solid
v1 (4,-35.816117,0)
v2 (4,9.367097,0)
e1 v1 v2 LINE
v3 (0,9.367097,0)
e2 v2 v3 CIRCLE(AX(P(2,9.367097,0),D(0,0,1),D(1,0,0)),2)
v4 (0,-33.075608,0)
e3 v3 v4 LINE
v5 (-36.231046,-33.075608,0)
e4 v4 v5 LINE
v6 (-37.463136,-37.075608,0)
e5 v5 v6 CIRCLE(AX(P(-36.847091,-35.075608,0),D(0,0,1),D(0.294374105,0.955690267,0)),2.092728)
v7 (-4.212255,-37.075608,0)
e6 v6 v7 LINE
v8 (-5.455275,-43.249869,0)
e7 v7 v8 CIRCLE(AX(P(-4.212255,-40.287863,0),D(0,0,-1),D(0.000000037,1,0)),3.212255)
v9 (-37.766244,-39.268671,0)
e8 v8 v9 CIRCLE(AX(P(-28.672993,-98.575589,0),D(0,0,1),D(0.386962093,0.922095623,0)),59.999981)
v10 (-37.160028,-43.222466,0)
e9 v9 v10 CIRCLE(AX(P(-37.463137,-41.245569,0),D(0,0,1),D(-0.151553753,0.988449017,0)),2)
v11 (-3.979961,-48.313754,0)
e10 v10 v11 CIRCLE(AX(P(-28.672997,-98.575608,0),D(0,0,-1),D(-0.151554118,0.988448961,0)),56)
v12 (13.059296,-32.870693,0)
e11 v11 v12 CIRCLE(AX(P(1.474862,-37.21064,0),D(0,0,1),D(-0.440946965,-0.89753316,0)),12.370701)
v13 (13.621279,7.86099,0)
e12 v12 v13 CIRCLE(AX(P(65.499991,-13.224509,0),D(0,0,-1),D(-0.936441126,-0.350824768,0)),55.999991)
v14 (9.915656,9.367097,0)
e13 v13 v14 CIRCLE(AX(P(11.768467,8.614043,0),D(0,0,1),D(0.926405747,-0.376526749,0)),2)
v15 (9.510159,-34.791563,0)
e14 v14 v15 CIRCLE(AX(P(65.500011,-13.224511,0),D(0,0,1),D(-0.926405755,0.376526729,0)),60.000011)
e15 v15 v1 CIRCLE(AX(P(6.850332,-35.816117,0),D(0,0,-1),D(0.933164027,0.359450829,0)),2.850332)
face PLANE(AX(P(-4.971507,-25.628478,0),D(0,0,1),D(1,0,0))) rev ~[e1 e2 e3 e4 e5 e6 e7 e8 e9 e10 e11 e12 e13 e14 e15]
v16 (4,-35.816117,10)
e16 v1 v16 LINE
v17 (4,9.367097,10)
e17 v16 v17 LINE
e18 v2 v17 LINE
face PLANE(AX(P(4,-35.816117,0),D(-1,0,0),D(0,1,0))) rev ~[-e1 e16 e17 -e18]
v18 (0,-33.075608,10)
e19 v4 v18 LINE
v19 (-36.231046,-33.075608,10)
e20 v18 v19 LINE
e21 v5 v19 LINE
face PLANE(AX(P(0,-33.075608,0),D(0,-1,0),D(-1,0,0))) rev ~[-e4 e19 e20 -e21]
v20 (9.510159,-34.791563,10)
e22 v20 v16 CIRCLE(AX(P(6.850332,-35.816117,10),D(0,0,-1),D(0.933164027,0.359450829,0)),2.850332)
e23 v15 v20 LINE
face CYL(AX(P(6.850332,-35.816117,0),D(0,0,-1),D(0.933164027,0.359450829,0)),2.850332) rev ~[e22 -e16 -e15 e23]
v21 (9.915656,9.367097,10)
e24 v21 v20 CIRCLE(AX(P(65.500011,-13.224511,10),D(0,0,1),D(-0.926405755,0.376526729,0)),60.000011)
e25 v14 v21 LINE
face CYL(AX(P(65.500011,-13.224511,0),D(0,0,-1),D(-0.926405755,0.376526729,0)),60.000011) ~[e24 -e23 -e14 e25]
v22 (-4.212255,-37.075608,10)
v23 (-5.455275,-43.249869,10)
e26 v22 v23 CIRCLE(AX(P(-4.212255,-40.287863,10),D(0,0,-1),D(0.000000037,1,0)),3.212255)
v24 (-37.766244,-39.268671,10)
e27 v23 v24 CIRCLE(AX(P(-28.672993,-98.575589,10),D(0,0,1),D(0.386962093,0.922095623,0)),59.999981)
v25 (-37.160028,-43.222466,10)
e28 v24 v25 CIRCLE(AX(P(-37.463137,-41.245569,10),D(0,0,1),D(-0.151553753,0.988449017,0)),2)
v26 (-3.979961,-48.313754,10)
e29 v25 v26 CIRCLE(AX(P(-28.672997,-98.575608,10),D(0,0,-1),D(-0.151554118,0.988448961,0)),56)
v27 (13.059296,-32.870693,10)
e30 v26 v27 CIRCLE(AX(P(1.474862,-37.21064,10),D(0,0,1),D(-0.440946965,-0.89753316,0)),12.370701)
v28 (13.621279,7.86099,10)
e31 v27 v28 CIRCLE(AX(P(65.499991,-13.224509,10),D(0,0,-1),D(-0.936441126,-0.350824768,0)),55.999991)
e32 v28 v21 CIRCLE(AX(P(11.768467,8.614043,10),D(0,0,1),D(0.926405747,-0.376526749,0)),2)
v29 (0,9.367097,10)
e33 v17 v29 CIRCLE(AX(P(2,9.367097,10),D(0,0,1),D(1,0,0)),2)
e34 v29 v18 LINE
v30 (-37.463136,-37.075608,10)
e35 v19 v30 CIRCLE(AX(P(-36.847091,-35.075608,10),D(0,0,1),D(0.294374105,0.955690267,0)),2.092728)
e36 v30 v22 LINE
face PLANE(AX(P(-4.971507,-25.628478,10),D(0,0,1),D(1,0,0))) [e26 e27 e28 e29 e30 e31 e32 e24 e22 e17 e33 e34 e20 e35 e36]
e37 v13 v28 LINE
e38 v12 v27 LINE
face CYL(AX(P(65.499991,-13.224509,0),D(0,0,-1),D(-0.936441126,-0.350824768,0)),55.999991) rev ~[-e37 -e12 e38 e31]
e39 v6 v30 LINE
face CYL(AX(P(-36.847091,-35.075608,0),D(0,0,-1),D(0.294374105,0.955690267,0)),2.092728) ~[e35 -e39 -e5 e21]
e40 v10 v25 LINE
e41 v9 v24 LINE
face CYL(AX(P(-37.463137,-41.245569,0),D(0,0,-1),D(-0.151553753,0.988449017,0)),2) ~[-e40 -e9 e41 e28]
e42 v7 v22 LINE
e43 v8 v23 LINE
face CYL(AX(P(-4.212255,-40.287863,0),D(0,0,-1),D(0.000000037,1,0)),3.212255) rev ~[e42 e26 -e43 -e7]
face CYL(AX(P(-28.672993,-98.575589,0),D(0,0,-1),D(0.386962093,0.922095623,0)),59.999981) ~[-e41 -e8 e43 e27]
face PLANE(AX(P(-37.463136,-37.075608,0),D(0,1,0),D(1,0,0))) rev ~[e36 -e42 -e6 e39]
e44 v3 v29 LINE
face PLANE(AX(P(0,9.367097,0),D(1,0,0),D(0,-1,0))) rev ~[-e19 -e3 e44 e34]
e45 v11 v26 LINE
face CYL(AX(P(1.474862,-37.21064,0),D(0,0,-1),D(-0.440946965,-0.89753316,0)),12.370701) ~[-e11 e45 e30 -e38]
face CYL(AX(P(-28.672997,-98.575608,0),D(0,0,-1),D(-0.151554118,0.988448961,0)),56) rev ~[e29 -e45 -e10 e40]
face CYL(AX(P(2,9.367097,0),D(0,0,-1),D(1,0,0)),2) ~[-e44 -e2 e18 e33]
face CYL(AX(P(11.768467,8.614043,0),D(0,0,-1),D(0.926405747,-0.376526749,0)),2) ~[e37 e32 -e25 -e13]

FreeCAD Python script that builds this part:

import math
import FreeCAD as App
import Part
import Sketcher
Q = App.Units.Quantity

doc = App.newDocument("Part")
body = doc.addObject("PartDesign::Body", "Body")

# Sketch on XY plane
sketch1 = body.newObject("Sketcher::SketchObject", "Sketch")
sketch1.AttachmentSupport = (doc.getObject("XY_Plane"), [""])
sketch1.MapMode = "FlatFace"
sketch1.addGeometry([
    Part.LineSegment(App.Vector(0, 9.367097, 0), App.Vector(0, -33.075608, 0)),  # 0
    Part.LineSegment(App.Vector(0, -33.075608, 0), App.Vector(-36.231046, -33.075608, 0)),  # 1
    Part.ArcOfCircle(Part.Circle(App.Vector(-36.847091, -35.075608, 0), App.Vector(0, 0, 1), 2.092728), math.radians(72.87999), math.radians(252.87999)),  # 2
    Part.LineSegment(App.Vector(-37.463136, -37.075608, 0), App.Vector(-4.212255, -37.075608, 0)),  # 3
    Part.ArcOfCircle(Part.Circle(App.Vector(-4.212255, -40.287863, 0), App.Vector(0, 0, 1), 3.212255), math.radians(-112.765586), math.radians(89.999998)),  # 4
    Part.ArcOfCircle(Part.Circle(App.Vector(-28.672993, -98.575589, 0), App.Vector(0, 0, 1), 59.999981), math.radians(67.234396), math.radians(98.717007)),  # 5
    Part.ArcOfCircle(Part.Circle(App.Vector(-37.463137, -41.245569, 0), App.Vector(0, 0, 1), 2), math.radians(98.71698), math.radians(278.717012)),  # 6
    Part.ArcOfCircle(Part.Circle(App.Vector(-28.672997, -98.575608, 0), App.Vector(0, 0, 1), 56), math.radians(63.835676), math.radians(98.717001)),  # 7
    Part.ArcOfCircle(Part.Circle(App.Vector(1.474862, -37.21064, 0), App.Vector(0, 0, 1), 12.370701), math.radians(-116.164317), math.radians(20.537761)),  # 8
    Part.ArcOfCircle(Part.Circle(App.Vector(65.499991, -13.224509, 0), App.Vector(0, 0, 1), 55.999991), math.radians(157.881288), math.radians(200.53777)),  # 9
    Part.ArcOfCircle(Part.Circle(App.Vector(11.768467, 8.614043, 0), App.Vector(0, 0, 1), 2), math.radians(-22.118707), math.radians(157.881293)),  # 10
    Part.ArcOfCircle(Part.Circle(App.Vector(65.500011, -13.224511, 0), App.Vector(0, 0, 1), 60.000011), math.radians(157.881295), math.radians(201.066472)),  # 11
    Part.ArcOfCircle(Part.Circle(App.Vector(6.850332, -35.816117, 0), App.Vector(0, 0, 1), 2.850332), math.radians(179.999997), math.radians(381.066473)),  # 12
    Part.LineSegment(App.Vector(4, -35.816117, 0), App.Vector(4, 9.367097, 0)),  # 13
    Part.ArcOfCircle(Part.Circle(App.Vector(2, 9.367097, 0), App.Vector(0, 0, 1), 2), math.radians(0), math.radians(180)),  # 14
], False)
sketch1.addConstraint([
    Sketcher.Constraint("Coincident", 0, 2, 1, 1),
    Sketcher.Constraint("Coincident", 1, 2, 2, 1),
    Sketcher.Constraint("Coincident", 2, 2, 3, 1),
    Sketcher.Constraint("Tangent", 3, 2, 4, 2),
    Sketcher.Constraint("Tangent", 4, 1, 5, 1),
    Sketcher.Constraint("Tangent", 5, 2, 6, 1),
    Sketcher.Constraint("Tangent", 6, 2, 7, 2),
    Sketcher.Constraint("Tangent", 7, 1, 8, 1),
    Sketcher.Constraint("Tangent", 8, 2, 9, 2),
    Sketcher.Constraint("Tangent", 9, 1, 10, 1),
    Sketcher.Constraint("Tangent", 10, 2, 11, 1),
    Sketcher.Constraint("Tangent", 11, 2, 12, 2),
    Sketcher.Constraint("Tangent", 12, 1, 13, 1),
    Sketcher.Constraint("Tangent", 13, 2, 14, 1),
    Sketcher.Constraint("Tangent", 14, 2, 0, 1),
    Sketcher.Constraint("Vertical", 0),
    Sketcher.Constraint("Horizontal", 1),
    Sketcher.Constraint("Horizontal", 3),
    Sketcher.Constraint("Vertical", 13),
    Sketcher.Constraint("Equal", 6, 10),
    Sketcher.Constraint("Equal", 10, 14),
    Sketcher.Constraint("PointOnObject", 0, 2, -2),
    Sketcher.Constraint("Horizontal", 9, 3, 11, 3),
    Sketcher.Constraint("Horizontal", 14, 3, 10, 2),
    Sketcher.Constraint("Vertical", 6, 3, 2, 2),
    Sketcher.Constraint("Radius", 6, Q("2 mm")),
    Sketcher.Constraint("Radius", 7, Q("56 mm")),
    Sketcher.Constraint("DistanceY", 2, 3, 0, 2, Q("2 mm")),
    Sketcher.Constraint("DistanceY", 2, 2, 2, 3, Q("2 mm")),
    Sketcher.Constraint("Radius", 8, Q("12.370701 mm")),
    Sketcher.Constraint("DistanceY", 7, 3, 2, 3, Q("63.5 mm")),
    Sketcher.Constraint("Radius", 2, Q("2.092728 mm")),
    Sketcher.Constraint("Radius", 5, Q("59.999981 mm")),
    Sketcher.Constraint("Radius", 9, Q("55.999991 mm")),
    Sketcher.Constraint("Radius", 11, Q("60.000011 mm")),
    Sketcher.Constraint("Radius", 12, Q("2.850332 mm")),
    Sketcher.Constraint("Radius", 4, Q("3.212255 mm")),
    Sketcher.Constraint("DistanceX", 6, 3, 8, 3, Q("38.937999 mm")),
    Sketcher.Constraint("DistanceX", 3, 1, 3, 2, Q("33.250881 mm")),
    Sketcher.Constraint("DistanceY", 2, 3, 9, 3, Q("21.851099 mm")),
    Sketcher.Constraint("DistanceY", 0, 2, 9, 1, Q("40.936598 mm")),
    Sketcher.Constraint("DistanceX", 1, 2, 1, 1, Q("36.231046 mm")),
    Sketcher.Constraint("DistanceY", 13, 1, 13, 2, Q("45.183214 mm")),
    Sketcher.Constraint("DistanceY", 2, 3, -1, 1, Q("35.075608 mm")),
])
pad1 = body.newObject("PartDesign::Pad", "Pad")
pad1.Profile = sketch1
pad1.Length = 10

doc.recompute()
